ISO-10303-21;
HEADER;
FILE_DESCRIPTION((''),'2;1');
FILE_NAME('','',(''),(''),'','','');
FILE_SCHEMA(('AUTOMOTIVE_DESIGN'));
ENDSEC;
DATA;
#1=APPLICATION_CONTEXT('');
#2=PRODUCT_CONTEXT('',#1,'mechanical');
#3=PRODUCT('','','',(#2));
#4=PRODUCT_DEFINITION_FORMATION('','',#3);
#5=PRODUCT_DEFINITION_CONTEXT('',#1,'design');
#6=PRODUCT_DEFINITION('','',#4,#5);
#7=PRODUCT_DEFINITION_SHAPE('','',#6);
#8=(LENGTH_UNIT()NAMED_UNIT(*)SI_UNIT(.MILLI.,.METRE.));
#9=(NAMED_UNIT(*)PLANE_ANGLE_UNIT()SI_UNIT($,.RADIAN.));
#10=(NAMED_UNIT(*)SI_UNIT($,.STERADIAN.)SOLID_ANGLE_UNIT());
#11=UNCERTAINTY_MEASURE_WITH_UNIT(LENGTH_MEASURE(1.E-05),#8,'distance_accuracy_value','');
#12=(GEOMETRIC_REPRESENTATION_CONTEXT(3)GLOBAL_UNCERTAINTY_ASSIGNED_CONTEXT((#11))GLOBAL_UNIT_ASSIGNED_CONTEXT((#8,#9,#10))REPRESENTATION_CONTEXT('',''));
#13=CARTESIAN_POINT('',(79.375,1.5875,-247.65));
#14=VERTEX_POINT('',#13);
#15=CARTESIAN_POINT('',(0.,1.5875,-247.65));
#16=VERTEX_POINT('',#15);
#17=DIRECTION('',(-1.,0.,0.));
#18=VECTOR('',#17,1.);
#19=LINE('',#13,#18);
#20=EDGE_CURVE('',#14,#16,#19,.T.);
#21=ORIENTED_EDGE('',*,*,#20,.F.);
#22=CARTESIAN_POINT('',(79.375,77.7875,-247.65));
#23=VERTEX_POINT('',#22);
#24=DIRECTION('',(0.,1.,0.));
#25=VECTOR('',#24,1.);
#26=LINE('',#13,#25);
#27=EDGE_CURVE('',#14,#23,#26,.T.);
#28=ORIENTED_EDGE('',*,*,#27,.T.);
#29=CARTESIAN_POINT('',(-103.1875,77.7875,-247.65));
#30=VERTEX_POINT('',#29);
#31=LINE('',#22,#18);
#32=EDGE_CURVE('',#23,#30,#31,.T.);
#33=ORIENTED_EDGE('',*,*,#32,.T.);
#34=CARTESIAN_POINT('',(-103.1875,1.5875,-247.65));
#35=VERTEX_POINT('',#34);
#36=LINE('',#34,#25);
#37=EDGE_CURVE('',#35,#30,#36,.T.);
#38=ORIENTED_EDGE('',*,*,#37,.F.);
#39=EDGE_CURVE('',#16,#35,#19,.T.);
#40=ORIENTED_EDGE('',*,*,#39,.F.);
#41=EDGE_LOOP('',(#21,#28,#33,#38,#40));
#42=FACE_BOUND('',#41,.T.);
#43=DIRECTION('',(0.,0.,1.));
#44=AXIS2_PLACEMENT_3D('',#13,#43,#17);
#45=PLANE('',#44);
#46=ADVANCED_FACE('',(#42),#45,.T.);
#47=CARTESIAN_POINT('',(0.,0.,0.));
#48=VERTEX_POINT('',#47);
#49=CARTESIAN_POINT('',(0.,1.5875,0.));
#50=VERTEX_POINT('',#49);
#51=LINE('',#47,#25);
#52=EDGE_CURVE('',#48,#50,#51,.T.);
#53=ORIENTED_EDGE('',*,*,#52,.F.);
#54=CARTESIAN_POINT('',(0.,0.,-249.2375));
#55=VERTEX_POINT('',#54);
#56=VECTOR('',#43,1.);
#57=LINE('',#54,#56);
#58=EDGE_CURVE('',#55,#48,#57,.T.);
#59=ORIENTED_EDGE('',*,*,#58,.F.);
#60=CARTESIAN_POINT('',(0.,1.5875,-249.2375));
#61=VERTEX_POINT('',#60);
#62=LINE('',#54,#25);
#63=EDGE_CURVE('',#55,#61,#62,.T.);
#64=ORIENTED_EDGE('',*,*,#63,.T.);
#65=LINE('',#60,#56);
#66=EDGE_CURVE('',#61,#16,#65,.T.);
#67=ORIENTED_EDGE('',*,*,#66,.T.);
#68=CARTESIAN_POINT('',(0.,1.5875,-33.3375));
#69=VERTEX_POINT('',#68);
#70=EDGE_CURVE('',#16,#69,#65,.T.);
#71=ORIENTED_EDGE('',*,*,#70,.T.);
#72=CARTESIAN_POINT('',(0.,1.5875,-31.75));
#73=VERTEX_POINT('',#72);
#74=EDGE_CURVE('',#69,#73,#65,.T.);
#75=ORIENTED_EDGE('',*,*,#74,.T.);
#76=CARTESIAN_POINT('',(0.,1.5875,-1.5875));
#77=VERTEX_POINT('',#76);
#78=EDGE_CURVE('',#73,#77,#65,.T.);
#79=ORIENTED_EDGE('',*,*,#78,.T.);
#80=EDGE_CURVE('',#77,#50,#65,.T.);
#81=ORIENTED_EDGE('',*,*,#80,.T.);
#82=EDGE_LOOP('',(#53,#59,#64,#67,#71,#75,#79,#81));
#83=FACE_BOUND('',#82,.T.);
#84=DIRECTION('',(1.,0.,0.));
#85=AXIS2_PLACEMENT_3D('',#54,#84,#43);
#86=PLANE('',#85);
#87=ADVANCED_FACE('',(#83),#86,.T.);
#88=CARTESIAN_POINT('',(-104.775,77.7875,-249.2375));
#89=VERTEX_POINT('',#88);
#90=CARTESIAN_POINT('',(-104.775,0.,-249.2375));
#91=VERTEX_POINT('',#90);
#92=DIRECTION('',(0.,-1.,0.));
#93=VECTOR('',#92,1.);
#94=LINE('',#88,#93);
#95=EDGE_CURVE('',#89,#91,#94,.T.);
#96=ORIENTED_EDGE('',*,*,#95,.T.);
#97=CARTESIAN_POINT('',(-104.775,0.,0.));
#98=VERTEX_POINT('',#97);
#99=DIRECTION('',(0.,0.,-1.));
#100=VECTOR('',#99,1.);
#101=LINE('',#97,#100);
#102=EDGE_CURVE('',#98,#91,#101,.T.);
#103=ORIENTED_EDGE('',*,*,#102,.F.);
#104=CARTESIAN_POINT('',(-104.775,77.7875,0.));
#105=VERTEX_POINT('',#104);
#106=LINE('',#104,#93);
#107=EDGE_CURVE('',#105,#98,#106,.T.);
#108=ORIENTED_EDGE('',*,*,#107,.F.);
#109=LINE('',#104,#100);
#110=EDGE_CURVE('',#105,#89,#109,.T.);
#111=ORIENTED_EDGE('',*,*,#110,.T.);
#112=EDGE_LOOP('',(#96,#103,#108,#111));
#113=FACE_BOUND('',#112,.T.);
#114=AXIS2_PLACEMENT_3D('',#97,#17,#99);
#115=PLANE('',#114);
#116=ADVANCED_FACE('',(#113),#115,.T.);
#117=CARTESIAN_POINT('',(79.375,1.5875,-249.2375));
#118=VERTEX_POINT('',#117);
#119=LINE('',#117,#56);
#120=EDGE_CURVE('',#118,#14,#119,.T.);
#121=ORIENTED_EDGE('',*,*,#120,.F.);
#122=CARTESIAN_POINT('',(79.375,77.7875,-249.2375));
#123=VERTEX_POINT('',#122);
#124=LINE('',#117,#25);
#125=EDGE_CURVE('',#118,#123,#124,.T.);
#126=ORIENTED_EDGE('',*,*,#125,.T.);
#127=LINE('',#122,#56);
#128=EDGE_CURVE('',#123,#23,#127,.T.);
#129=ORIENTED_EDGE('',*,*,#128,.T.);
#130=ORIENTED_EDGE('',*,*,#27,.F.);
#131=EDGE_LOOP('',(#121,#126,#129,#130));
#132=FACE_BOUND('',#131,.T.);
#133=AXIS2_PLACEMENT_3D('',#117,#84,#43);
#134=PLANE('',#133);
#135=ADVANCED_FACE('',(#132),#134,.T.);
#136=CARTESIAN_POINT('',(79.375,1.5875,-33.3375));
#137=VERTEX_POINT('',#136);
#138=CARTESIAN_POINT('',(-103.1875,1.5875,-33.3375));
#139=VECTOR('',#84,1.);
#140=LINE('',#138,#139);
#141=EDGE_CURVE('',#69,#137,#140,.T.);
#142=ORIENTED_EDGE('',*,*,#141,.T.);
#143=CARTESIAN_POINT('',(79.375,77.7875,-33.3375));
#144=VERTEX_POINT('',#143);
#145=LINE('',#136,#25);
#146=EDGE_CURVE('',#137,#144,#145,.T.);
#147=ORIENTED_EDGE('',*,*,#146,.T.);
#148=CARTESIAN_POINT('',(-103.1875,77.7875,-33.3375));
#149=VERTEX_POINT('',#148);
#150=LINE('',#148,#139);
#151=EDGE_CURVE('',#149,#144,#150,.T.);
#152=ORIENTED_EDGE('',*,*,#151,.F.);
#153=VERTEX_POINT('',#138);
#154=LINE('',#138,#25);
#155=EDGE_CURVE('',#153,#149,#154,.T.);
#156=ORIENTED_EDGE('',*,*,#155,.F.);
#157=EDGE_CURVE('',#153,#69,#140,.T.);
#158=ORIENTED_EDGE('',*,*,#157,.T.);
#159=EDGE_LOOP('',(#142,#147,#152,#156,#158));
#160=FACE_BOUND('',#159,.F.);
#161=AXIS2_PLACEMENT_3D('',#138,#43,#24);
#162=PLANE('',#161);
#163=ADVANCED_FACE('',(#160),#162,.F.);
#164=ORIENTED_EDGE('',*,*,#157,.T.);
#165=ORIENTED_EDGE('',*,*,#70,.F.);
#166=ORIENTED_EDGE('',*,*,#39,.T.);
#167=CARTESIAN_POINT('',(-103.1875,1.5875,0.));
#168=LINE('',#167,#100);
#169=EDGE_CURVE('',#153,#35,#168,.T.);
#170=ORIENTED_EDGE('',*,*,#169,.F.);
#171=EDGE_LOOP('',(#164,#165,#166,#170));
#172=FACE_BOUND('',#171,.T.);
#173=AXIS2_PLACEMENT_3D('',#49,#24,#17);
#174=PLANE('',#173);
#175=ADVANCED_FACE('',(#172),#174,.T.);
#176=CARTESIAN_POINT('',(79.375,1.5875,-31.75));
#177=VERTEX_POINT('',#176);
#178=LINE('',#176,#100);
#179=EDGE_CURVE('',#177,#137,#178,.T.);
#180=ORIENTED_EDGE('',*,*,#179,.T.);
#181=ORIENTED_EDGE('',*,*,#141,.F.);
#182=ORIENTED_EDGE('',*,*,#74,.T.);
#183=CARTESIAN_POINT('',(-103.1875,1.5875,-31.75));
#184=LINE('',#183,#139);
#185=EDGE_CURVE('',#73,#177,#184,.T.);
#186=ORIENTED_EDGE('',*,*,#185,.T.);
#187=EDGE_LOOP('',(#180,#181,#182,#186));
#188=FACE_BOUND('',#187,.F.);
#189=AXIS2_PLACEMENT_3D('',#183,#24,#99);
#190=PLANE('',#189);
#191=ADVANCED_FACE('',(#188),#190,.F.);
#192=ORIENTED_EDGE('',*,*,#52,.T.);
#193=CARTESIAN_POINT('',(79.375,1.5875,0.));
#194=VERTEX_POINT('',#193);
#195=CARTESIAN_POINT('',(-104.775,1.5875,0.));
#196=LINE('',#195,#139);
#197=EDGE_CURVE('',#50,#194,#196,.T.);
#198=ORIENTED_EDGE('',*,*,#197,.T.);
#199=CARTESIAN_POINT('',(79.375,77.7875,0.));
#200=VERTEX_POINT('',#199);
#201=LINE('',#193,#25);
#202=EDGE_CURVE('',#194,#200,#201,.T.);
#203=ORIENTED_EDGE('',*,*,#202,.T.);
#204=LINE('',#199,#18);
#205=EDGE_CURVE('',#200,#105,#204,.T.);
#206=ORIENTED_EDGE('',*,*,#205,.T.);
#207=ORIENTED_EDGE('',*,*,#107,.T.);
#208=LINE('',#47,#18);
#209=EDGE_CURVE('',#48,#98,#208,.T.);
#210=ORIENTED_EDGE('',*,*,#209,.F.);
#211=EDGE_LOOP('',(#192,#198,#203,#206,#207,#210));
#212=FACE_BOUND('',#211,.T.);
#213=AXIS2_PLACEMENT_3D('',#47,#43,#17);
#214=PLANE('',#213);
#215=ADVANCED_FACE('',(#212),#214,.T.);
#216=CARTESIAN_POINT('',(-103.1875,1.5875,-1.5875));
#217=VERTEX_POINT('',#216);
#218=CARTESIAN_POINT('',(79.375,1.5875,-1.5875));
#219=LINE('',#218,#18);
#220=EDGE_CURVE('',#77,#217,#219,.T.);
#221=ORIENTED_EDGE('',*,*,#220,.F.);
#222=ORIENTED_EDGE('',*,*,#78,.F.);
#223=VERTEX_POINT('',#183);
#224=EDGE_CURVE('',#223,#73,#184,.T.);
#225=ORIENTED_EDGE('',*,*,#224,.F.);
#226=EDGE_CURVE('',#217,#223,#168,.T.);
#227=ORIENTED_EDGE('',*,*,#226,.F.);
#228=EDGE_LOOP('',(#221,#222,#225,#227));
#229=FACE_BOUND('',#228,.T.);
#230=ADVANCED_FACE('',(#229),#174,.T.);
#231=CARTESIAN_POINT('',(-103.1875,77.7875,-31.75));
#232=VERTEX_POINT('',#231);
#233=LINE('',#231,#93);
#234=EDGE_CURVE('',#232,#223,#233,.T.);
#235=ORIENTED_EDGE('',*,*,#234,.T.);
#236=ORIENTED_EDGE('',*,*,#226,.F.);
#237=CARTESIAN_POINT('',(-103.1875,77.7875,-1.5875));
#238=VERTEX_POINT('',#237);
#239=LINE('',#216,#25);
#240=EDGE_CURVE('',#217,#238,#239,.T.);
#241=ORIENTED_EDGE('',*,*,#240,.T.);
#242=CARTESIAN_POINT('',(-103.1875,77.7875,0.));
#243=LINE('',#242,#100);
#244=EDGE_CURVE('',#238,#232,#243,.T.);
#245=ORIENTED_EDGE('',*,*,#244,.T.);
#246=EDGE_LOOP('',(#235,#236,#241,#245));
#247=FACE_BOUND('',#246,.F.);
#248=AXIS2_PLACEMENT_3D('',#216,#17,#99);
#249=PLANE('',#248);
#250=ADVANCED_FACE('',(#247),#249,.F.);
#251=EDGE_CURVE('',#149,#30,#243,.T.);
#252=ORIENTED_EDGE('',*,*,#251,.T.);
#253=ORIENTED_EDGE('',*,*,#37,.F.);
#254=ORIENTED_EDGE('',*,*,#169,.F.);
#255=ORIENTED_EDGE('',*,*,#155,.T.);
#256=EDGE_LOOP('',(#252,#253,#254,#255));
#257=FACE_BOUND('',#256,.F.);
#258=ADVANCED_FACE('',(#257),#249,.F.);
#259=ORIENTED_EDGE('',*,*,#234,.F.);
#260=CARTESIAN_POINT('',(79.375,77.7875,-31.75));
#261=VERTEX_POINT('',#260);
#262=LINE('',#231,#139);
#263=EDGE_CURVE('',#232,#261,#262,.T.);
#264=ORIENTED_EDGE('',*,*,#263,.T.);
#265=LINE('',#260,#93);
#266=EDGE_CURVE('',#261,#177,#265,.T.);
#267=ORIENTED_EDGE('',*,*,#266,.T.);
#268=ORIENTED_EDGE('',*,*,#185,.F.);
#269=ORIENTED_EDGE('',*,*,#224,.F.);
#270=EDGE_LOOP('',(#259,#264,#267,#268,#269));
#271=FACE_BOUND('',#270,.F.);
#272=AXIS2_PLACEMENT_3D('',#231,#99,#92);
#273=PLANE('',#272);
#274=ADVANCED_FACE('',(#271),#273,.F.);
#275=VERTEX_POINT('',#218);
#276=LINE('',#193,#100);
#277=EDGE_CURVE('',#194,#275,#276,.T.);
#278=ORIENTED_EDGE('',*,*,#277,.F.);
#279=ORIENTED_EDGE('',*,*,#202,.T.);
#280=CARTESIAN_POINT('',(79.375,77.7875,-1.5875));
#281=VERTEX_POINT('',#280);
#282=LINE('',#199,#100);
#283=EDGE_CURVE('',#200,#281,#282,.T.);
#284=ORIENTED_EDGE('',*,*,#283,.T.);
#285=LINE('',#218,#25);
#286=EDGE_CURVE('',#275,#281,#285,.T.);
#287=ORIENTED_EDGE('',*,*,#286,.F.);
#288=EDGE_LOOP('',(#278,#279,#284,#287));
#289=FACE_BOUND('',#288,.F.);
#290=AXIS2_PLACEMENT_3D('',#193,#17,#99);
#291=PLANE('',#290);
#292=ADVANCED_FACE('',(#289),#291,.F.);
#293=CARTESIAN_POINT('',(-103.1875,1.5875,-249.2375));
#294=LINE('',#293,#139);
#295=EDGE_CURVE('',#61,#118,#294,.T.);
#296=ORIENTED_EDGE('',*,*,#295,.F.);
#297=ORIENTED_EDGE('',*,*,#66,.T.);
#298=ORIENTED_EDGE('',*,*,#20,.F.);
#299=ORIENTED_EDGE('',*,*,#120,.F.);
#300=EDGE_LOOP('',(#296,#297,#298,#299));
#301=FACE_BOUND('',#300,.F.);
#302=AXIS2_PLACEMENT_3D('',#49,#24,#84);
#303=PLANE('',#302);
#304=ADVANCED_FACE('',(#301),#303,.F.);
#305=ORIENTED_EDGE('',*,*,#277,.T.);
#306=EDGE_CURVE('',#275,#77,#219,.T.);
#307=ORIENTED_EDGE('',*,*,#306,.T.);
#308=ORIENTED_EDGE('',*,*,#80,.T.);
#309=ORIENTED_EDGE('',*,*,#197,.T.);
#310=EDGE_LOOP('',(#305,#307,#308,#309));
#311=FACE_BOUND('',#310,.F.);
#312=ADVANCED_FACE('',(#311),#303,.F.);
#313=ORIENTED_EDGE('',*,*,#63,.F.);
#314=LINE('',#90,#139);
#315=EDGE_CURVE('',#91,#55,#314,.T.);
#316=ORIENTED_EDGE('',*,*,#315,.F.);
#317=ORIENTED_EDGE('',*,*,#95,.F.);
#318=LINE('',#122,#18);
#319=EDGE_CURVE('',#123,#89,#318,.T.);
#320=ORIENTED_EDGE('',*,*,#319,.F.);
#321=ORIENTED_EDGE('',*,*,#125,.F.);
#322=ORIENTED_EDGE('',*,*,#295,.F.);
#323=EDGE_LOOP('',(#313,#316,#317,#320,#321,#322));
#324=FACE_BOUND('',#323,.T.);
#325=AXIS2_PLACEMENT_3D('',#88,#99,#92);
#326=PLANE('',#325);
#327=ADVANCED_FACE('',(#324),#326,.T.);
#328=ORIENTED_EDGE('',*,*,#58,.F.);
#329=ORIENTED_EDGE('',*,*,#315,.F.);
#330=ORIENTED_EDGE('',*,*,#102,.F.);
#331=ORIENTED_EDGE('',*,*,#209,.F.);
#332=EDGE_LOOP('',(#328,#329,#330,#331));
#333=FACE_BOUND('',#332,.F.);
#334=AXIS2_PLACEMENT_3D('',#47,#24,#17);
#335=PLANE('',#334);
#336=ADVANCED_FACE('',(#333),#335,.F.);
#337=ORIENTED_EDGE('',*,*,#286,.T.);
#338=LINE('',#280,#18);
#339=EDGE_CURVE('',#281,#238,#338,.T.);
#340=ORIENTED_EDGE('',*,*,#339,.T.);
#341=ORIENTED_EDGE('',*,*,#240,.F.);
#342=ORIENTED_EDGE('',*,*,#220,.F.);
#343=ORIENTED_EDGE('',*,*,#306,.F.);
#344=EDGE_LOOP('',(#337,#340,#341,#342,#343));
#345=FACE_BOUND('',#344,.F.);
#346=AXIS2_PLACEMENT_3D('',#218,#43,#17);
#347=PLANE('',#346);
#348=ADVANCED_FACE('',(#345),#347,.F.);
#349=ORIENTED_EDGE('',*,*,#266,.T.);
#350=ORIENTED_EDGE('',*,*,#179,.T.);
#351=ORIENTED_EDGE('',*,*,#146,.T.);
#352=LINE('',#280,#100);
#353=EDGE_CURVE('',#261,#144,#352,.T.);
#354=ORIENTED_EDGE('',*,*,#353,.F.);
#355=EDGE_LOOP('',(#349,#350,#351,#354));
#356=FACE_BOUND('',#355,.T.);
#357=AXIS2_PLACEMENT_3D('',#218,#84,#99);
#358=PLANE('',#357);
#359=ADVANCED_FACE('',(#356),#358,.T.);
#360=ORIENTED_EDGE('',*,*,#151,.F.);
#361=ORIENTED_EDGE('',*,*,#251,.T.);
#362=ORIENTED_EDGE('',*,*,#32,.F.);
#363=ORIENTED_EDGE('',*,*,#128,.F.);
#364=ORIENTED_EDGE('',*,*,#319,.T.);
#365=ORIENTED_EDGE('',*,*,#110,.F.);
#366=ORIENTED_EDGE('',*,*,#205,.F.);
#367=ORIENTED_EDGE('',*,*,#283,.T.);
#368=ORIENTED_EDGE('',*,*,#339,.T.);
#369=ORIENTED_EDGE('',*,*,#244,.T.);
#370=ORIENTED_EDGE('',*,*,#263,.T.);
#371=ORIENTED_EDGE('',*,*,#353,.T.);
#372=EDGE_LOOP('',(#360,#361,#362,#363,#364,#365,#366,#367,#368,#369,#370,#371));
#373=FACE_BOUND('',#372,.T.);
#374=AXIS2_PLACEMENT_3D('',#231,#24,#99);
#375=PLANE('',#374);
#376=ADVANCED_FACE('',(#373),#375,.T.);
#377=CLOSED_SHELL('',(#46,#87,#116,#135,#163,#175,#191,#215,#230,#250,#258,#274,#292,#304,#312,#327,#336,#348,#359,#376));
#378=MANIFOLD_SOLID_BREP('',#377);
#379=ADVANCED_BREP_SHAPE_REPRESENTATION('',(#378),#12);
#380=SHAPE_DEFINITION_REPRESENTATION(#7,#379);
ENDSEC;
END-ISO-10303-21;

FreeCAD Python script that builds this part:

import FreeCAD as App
import Part
import Sketcher
from FreeCAD import Vector
Q = App.Units.Quantity


def add_polygon(sketch, points):
    """Adds a closed chain of lines whose ends are joined by coincident constraints."""
    first, n = sketch.GeometryCount, len(points)
    for a, b in zip(points, points[1:] + points[:1]):
        sketch.addGeometry(Part.LineSegment(App.Vector(*a, 0), App.Vector(*b, 0)), False)
    for i in range(n):
        sketch.addConstraint(Sketcher.Constraint("Coincident", first + i, 2, first + (i + 1) % n, 1))

doc = App.newDocument("Part")
body = doc.addObject("PartDesign::Body", "Body")

sketch1 = body.newObject("Sketcher::SketchObject", "Sketch")
sketch1.AttachmentSupport = (doc.getObject("XZ_Plane"), [""])
sketch1.MapMode = "FlatFace"
add_polygon(sketch1, [(-104.775, 0), (0, 0), (0, -249.2375), (-104.775, -249.2375)])
sketch1.addConstraint(Sketcher.Constraint("Horizontal", 0))
sketch1.addConstraint(Sketcher.Constraint("Vertical", 1))
sketch1.addConstraint(Sketcher.Constraint("Horizontal", 2))
sketch1.addConstraint(Sketcher.Constraint("Vertical", 3))
sketch1.addConstraint(Sketcher.Constraint("Coincident", 0, 2, -1, 1))
sketch1.addConstraint(Sketcher.Constraint("DistanceX", 0, 1, 0, 2, Q("4.125 in")))
sketch1.addConstraint(Sketcher.Constraint("DistanceY", 1, 2, 1, 1, Q("9.8125 in")))
pad1 = body.newObject("PartDesign::Pad", "Pad")
pad1.Profile = sketch1
pad1.Length = Q("0.0625 in")
pad1.Reversed = True

sketch2 = body.newObject("Sketcher::SketchObject", "Sketch001")
sketch2.AttachmentSupport = (doc.getObject("XZ_Plane"), [""])
sketch2.MapMode = "FlatFace"
sketch2.AttachmentOffset = App.Placement(Vector(0, 0, -0.0625 * 25.4), App.Rotation())
add_polygon(sketch2, [(-104.775, 0), (79.375, 0), (79.375, -1.5875), (-103.1875, -1.5875), (-103.1875, -247.65), (79.375, -247.65), (79.375, -249.2375), (-103.1875, -249.2375), (-103.1875, -304.8), (-104.775, -304.8)])
sketch2.addConstraint(Sketcher.Constraint("Horizontal", 0))
sketch2.addConstraint(Sketcher.Constraint("Vertical", 1))
sketch2.addConstraint(Sketcher.Constraint("Horizontal", 2))
sketch2.addConstraint(Sketcher.Constraint("Vertical", 3))
sketch2.addConstraint(Sketcher.Constraint("Horizontal", 4))
sketch2.addConstraint(Sketcher.Constraint("Vertical", 5))
sketch2.addConstraint(Sketcher.Constraint("Horizontal", 6))
sketch2.addConstraint(Sketcher.Constraint("Vertical", 7))
sketch2.addConstraint(Sketcher.Constraint("Horizontal", 8))
sketch2.addConstraint(Sketcher.Constraint("Vertical", 9))
sketch2.addConstraint(Sketcher.Constraint("PointOnObject", 0, 2, -1))
sketch2.addConstraint(Sketcher.Constraint("Vertical", 1, 2, 4, 2))
sketch2.addConstraint(Sketcher.Constraint("Vertical", 3, 2, 6, 2))
sketch2.addConstraint(Sketcher.Constraint("Equal", 8, 1))
sketch2.addConstraint(Sketcher.Constraint("Equal", 1, 5))
sketch2.addConstraint(Sketcher.Constraint("DistanceY", 9, 1, 9, 2, Q("12 in")))
sketch2.addConstraint(Sketcher.Constraint("DistanceX", 0, 1, 0, 2, Q("7.25 in")))
sketch2.addConstraint(Sketcher.Constraint("DistanceX", 8, 2, 8, 1, Q("0.0625 in")))
sketch2.addConstraint(Sketcher.Constraint("DistanceY", 3, 2, 3, 1, Q("9.6875 in")))
sketch2.addConstraint(Sketcher.Constraint("DistanceX", -1, 1, 0, 2, Q("3.125 in")))
pad2 = body.newObject("PartDesign::Pad", "Pad001")
pad2.Profile = sketch2
pad2.Length = Q("3 in")
pad2.Reversed = True

sketch3 = body.newObject("Sketcher::SketchObject", "Sketch002")
sketch3.AttachmentSupport = (doc.getObject("YZ_Plane"), [""])
sketch3.MapMode = "FlatFace"
sketch3.AttachmentOffset = App.Placement(Vector(0, 0, -4.0625 * 25.4), App.Rotation())
add_polygon(sketch3, [(77.7875, -33.3375), (77.7875, -31.75), (1.5875, -31.75), (1.5875, -33.3375)])
sketch3.addConstraint(Sketcher.Constraint("Vertical", 0))
sketch3.addConstraint(Sketcher.Constraint("Horizontal", 1))
sketch3.addConstraint(Sketcher.Constraint("Vertical", 2))
sketch3.addConstraint(Sketcher.Constraint("Horizontal", 3))
sketch3.addConstraint(Sketcher.Constraint("DistanceX", 1, 2, 1, 1, Q("3 in")))
sketch3.addConstraint(Sketcher.Constraint("DistanceY", 0, 1, 0, 2, Q("0.0625 in")))
sketch3.addConstraint(Sketcher.Constraint("DistanceY", 0, 2, -1, 1, Q("1.25 in")))
sketch3.addConstraint(Sketcher.Constraint("DistanceX", -1, 1, 1, 2, Q("0.0625 in")))
pad3 = body.newObject("PartDesign::Pad", "Pad002")
pad3.Profile = sketch3
pad3.Length = Q("7.1875 in")

sketch4 = body.newObject("Sketcher::SketchObject", "Sketch003")
sketch4.AttachmentSupport = (doc.getObject("YZ_Plane"), [""])
sketch4.MapMode = "FlatFace"
sketch4.AttachmentOffset = App.Placement(Vector(0, 0, -4.125 * 25.4), App.Rotation())
add_polygon(sketch4, [(77.7875, -304.8), (1.5875, -304.8), (1.5875, -249.2375), (77.7875, -249.2375)])
sketch4.addConstraint(Sketcher.Constraint("Horizontal", 0))
sketch4.addConstraint(Sketcher.Constraint("Vertical", 1))
sketch4.addConstraint(Sketcher.Constraint("Horizontal", 2))
sketch4.addConstraint(Sketcher.Constraint("Vertical", 3))
sketch4.addConstraint(Sketcher.Constraint("DistanceX", 0, 2, 0, 1, Q("3 in")))
sketch4.addConstraint(Sketcher.Constraint("DistanceY", 0, 2, -1, 1, Q("12 in")))
sketch4.addConstraint(Sketcher.Constraint("DistanceY", 1, 1, 1, 2, Q("2.1875 in")))
sketch4.addConstraint(Sketcher.Constraint("DistanceX", -1, 1, 0, 2, Q("0.0625 in")))
pocket1 = body.newObject("PartDesign::Pocket", "Pocket")
pocket1.Profile = sketch4
pocket1.Length = Q("2 in")
pocket1.Reversed = True

doc.recompute()
